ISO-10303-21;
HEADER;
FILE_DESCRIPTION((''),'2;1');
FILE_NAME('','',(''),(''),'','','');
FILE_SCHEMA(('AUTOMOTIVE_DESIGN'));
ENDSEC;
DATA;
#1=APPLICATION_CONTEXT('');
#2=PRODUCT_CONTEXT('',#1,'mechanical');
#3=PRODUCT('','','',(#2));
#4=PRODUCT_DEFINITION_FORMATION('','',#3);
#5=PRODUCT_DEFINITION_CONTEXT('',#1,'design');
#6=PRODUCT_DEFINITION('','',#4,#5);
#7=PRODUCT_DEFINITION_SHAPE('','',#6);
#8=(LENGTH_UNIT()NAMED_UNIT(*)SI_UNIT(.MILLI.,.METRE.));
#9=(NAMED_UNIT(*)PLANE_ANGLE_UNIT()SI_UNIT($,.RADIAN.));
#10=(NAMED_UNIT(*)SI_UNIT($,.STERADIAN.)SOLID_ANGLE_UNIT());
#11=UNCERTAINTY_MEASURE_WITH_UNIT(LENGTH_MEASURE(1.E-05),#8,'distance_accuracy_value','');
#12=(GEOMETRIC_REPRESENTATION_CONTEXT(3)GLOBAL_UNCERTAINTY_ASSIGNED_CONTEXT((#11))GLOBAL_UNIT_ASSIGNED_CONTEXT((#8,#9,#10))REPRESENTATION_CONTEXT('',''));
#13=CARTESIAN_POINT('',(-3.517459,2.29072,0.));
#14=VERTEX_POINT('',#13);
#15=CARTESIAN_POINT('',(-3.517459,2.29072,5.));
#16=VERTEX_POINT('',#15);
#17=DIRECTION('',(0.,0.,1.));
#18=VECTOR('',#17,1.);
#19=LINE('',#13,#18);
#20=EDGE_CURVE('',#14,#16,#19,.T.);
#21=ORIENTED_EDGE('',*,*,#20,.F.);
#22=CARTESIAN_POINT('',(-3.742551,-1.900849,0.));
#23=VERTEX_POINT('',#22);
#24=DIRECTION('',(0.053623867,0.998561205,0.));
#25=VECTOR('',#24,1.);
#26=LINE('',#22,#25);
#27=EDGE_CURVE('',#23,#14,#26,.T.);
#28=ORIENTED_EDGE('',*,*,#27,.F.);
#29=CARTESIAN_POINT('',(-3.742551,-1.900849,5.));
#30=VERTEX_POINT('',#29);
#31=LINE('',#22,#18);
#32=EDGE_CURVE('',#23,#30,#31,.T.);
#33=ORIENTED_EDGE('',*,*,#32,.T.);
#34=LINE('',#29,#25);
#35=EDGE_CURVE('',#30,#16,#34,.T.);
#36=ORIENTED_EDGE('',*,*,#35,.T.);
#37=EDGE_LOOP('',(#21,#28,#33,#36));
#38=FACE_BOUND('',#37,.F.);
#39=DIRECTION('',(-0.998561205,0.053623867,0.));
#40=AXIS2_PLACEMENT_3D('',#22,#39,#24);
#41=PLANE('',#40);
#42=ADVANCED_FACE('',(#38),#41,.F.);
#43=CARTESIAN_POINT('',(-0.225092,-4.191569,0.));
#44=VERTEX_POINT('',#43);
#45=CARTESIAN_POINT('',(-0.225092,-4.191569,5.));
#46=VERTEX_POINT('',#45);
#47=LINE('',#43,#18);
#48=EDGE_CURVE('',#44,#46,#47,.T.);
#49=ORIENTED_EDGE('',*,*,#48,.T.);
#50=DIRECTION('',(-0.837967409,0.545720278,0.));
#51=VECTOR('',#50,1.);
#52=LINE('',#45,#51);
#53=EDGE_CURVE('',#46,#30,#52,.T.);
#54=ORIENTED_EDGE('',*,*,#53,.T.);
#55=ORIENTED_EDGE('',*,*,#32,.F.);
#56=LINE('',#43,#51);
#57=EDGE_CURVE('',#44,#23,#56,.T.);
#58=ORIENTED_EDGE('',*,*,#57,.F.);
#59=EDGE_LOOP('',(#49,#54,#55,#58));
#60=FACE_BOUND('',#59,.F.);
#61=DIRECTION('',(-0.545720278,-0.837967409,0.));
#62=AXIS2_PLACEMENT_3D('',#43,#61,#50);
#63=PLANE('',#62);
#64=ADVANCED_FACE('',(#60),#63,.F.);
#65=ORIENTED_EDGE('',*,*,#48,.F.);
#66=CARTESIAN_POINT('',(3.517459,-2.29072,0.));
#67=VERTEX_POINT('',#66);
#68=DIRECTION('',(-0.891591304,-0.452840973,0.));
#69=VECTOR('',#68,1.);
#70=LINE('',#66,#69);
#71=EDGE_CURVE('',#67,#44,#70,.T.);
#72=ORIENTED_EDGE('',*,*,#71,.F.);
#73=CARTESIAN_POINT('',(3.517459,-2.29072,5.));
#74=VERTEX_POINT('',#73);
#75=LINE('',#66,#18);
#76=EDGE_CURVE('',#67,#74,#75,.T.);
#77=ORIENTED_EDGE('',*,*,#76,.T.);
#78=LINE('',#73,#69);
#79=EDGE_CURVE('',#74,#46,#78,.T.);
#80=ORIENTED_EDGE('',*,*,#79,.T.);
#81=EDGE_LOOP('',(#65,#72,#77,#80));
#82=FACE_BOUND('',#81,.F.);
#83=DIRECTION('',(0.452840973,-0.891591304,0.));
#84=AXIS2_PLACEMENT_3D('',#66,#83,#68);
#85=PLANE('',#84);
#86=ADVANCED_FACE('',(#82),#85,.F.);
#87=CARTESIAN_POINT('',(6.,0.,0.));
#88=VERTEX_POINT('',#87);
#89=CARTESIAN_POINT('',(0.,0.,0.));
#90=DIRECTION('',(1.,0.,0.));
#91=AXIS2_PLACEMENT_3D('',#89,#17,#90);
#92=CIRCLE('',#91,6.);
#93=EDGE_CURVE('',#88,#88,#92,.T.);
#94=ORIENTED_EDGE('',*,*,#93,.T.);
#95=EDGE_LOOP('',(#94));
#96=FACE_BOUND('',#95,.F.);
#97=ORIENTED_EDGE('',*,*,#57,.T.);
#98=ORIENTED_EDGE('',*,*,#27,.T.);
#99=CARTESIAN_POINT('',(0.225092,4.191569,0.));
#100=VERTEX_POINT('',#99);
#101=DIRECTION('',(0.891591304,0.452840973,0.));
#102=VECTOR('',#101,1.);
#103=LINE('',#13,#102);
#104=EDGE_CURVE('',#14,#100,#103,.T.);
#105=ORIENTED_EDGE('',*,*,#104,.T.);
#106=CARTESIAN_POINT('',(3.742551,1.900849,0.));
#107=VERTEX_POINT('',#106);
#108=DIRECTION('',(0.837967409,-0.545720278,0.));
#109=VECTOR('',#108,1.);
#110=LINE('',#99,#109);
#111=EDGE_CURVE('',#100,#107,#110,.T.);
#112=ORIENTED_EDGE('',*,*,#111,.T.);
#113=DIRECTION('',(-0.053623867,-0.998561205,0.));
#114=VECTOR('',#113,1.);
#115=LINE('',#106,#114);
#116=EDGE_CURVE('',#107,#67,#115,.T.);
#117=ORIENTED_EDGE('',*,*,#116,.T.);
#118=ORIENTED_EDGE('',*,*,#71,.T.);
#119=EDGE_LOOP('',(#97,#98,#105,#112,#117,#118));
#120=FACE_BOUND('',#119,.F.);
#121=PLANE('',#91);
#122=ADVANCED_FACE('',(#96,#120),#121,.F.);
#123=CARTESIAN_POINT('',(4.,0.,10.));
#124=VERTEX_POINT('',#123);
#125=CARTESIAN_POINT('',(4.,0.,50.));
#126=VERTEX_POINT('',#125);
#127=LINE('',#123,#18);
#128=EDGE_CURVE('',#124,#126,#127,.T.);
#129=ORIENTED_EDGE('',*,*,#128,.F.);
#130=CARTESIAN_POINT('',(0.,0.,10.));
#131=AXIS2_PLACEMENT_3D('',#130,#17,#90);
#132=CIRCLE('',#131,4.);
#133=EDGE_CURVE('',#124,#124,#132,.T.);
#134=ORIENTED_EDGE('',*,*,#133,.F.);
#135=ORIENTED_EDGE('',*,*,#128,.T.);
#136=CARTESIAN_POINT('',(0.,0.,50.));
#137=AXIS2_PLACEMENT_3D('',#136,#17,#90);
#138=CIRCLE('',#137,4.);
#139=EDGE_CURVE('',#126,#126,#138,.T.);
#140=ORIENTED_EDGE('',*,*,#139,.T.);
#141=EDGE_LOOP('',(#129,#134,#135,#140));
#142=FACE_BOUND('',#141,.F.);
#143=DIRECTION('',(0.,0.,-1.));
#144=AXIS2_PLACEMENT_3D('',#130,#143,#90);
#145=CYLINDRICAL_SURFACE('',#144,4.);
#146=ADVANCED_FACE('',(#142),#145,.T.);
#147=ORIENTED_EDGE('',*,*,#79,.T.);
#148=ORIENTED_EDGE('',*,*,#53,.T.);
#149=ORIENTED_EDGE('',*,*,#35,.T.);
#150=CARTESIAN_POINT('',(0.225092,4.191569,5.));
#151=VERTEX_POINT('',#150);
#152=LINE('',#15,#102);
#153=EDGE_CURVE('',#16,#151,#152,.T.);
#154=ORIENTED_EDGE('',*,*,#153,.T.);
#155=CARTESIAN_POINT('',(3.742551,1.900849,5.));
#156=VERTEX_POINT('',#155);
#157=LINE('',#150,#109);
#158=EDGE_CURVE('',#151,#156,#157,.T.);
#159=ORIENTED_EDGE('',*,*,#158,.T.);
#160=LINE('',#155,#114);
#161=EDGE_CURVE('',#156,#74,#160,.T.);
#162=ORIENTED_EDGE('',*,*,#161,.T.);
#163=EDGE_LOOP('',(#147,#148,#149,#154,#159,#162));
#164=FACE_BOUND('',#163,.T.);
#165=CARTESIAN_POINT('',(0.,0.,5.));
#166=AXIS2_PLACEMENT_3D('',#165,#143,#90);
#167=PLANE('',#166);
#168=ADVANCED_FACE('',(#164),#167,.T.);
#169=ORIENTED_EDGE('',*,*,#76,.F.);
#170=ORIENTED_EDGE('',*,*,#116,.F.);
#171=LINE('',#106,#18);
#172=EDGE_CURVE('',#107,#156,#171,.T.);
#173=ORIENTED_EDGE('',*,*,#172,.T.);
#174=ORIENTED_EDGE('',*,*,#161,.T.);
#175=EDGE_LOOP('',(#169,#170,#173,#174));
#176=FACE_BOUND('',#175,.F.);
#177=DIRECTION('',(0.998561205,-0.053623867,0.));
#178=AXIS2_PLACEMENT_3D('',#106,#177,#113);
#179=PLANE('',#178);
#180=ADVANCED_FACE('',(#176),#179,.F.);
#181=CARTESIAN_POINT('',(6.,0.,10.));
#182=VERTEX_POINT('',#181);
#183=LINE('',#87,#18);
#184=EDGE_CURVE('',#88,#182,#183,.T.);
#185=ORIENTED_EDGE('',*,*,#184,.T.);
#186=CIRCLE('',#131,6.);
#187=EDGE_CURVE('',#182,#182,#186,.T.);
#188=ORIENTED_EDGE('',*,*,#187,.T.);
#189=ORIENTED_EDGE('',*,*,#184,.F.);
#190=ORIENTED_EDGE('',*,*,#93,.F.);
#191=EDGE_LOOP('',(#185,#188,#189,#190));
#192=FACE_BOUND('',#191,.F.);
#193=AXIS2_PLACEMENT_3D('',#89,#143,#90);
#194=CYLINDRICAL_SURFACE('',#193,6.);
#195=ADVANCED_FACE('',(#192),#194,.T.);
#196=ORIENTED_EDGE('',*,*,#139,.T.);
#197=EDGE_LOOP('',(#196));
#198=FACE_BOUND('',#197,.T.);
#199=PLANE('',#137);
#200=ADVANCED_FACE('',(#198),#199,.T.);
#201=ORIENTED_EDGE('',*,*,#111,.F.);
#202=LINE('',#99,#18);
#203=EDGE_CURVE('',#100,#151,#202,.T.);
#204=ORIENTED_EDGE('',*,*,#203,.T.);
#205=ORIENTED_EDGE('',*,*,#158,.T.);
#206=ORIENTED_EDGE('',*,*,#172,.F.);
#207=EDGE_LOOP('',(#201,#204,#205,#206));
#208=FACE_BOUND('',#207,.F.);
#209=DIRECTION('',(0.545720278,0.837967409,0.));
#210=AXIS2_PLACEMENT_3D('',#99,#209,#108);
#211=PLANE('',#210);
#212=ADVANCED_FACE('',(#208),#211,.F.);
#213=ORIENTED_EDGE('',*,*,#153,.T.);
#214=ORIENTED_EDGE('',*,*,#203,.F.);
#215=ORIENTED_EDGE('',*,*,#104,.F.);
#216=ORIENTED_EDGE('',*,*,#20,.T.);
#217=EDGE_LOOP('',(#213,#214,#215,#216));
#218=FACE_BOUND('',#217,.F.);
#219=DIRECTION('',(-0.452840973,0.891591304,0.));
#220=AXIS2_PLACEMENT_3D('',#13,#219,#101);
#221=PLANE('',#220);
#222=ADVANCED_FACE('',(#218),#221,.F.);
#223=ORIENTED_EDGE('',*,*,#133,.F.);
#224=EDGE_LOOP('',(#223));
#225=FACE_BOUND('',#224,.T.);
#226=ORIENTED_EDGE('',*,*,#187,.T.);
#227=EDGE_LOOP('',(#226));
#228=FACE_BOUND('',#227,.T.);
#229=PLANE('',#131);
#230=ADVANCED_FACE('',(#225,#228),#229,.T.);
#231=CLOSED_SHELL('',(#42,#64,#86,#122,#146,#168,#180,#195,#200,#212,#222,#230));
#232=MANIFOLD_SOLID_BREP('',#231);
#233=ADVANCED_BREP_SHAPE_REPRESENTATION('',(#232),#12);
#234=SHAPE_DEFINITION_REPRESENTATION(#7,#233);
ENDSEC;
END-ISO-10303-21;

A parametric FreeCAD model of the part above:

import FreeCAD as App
import Part
import Sketcher
from FreeCAD import Vector
Q = App.Units.Quantity

doc = App.newDocument("Part")
params = doc.addObject("Spreadsheet::Sheet", "Params")
for row, (alias, value) in enumerate([
    ("sketch1_diameter", "12 mm"),
    ("pad1_length", "10 mm"),
    ("sketch2_diameter", "8 mm"),
    ("pad2_length", "40 mm"),
    ("pocket1_length", "5 mm"),
], start=1):
    params.set(f"A{row}", alias)
    params.set(f"B{row}", "=" + value)
    params.setAlias(f"B{row}", alias)

body = doc.addObject("PartDesign::Body", "Body")

sketch1 = body.newObject("Sketcher::SketchObject", "Sketch")
sketch1.AttachmentSupport = (doc.getObject("XY_Plane"), [""])
sketch1.MapMode = "FlatFace"
sketch1.addGeometry(Part.Circle(Vector(0, 0, 0), Vector(0, 0, 1), 6), False)
sketch1.addConstraint([
    Sketcher.Constraint("Coincident", 0, 3, -1, 1),
    Sketcher.Constraint("Diameter", 0, Q("12 mm")),
])
sketch1.setExpression("Constraints[1]", "Params.sketch1_diameter")
pad1 = body.newObject("PartDesign::Pad", "Pad")
pad1.Profile = sketch1
pad1.setExpression("Length", "Params.pad1_length")

sketch2 = body.newObject("Sketcher::SketchObject", "Sketch001")
sketch2.AttachmentSupport = (doc.getObject("XY_Plane"), [""])
sketch2.MapMode = "FlatFace"
sketch2.AttachmentOffset = App.Placement(Vector(0, 0, 10), App.Rotation())
sketch2.addGeometry(Part.Circle(Vector(0, 0, 0), Vector(0, 0, 1), 4), False)
sketch2.addConstraint([
    Sketcher.Constraint("Coincident", 0, 3, -1, 1),
    Sketcher.Constraint("Diameter", 0, Q("8 mm")),
])
sketch2.setExpression("Constraints[1]", "Params.sketch2_diameter")
pad2 = body.newObject("PartDesign::Pad", "Pad001")
pad2.Profile = sketch2
pad2.setExpression("Length", "Params.pad2_length")

sketch3 = body.newObject("Sketcher::SketchObject", "Sketch002")
sketch3.AttachmentSupport = (doc.getObject("XY_Plane"), [""])
sketch3.MapMode = "FlatFace"
sketch3.addGeometry([
    Part.LineSegment(Vector(0.2, 4.2, 0), Vector(3.7, 1.9, 0)),
    Part.LineSegment(Vector(3.7, 1.9, 0), Vector(3.5, -2.3, 0)),
    Part.LineSegment(Vector(3.5, -2.3, 0), Vector(-0.2, -4.2, 0)),
    Part.LineSegment(Vector(-0.2, -4.2, 0), Vector(-3.7, -1.9, 0)),
    Part.LineSegment(Vector(-3.7, -1.9, 0), Vector(-3.5, 2.3, 0)),
    Part.LineSegment(Vector(-3.5, 2.3, 0), Vector(0.2, 4.2, 0)),
], False)
sketch3.addConstraint([
    Sketcher.Constraint("Coincident", 0, 2, 1, 1),
    Sketcher.Constraint("Coincident", 1, 2, 2, 1),
    Sketcher.Constraint("Coincident", 2, 2, 3, 1),
    Sketcher.Constraint("Coincident", 3, 2, 4, 1),
    Sketcher.Constraint("Coincident", 4, 2, 5, 1),
    Sketcher.Constraint("Coincident", 5, 2, 0, 1),
    Sketcher.Constraint("Symmetric", 0, 2, 3, 2, -1, 1),
    Sketcher.Constraint("Symmetric", 1, 2, 4, 2, -1, 1),
    Sketcher.Constraint("Symmetric", 2, 2, 5, 2, -1, 1),
    Sketcher.Constraint("Equal", 0, 1),
    Sketcher.Constraint("Equal", 1, 2),
    Sketcher.Constraint("DistanceY", 3, 2, 0, 2, Q("3.801698 mm")),
    Sketcher.Constraint("Distance", 0, Q("4.197608 mm")),
    Sketcher.Constraint("DistanceX", -1, 1, 0, 2, Q("3.742551 mm")),
    Sketcher.Constraint("DistanceX", -1, 1, 1, 2, Q("3.517459 mm")),
])
pocket1 = body.newObject("PartDesign::Pocket", "Pocket")
pocket1.Profile = sketch3
pocket1.setExpression("Length", "Params.pocket1_length")
pocket1.Reversed = True

doc.recompute()
